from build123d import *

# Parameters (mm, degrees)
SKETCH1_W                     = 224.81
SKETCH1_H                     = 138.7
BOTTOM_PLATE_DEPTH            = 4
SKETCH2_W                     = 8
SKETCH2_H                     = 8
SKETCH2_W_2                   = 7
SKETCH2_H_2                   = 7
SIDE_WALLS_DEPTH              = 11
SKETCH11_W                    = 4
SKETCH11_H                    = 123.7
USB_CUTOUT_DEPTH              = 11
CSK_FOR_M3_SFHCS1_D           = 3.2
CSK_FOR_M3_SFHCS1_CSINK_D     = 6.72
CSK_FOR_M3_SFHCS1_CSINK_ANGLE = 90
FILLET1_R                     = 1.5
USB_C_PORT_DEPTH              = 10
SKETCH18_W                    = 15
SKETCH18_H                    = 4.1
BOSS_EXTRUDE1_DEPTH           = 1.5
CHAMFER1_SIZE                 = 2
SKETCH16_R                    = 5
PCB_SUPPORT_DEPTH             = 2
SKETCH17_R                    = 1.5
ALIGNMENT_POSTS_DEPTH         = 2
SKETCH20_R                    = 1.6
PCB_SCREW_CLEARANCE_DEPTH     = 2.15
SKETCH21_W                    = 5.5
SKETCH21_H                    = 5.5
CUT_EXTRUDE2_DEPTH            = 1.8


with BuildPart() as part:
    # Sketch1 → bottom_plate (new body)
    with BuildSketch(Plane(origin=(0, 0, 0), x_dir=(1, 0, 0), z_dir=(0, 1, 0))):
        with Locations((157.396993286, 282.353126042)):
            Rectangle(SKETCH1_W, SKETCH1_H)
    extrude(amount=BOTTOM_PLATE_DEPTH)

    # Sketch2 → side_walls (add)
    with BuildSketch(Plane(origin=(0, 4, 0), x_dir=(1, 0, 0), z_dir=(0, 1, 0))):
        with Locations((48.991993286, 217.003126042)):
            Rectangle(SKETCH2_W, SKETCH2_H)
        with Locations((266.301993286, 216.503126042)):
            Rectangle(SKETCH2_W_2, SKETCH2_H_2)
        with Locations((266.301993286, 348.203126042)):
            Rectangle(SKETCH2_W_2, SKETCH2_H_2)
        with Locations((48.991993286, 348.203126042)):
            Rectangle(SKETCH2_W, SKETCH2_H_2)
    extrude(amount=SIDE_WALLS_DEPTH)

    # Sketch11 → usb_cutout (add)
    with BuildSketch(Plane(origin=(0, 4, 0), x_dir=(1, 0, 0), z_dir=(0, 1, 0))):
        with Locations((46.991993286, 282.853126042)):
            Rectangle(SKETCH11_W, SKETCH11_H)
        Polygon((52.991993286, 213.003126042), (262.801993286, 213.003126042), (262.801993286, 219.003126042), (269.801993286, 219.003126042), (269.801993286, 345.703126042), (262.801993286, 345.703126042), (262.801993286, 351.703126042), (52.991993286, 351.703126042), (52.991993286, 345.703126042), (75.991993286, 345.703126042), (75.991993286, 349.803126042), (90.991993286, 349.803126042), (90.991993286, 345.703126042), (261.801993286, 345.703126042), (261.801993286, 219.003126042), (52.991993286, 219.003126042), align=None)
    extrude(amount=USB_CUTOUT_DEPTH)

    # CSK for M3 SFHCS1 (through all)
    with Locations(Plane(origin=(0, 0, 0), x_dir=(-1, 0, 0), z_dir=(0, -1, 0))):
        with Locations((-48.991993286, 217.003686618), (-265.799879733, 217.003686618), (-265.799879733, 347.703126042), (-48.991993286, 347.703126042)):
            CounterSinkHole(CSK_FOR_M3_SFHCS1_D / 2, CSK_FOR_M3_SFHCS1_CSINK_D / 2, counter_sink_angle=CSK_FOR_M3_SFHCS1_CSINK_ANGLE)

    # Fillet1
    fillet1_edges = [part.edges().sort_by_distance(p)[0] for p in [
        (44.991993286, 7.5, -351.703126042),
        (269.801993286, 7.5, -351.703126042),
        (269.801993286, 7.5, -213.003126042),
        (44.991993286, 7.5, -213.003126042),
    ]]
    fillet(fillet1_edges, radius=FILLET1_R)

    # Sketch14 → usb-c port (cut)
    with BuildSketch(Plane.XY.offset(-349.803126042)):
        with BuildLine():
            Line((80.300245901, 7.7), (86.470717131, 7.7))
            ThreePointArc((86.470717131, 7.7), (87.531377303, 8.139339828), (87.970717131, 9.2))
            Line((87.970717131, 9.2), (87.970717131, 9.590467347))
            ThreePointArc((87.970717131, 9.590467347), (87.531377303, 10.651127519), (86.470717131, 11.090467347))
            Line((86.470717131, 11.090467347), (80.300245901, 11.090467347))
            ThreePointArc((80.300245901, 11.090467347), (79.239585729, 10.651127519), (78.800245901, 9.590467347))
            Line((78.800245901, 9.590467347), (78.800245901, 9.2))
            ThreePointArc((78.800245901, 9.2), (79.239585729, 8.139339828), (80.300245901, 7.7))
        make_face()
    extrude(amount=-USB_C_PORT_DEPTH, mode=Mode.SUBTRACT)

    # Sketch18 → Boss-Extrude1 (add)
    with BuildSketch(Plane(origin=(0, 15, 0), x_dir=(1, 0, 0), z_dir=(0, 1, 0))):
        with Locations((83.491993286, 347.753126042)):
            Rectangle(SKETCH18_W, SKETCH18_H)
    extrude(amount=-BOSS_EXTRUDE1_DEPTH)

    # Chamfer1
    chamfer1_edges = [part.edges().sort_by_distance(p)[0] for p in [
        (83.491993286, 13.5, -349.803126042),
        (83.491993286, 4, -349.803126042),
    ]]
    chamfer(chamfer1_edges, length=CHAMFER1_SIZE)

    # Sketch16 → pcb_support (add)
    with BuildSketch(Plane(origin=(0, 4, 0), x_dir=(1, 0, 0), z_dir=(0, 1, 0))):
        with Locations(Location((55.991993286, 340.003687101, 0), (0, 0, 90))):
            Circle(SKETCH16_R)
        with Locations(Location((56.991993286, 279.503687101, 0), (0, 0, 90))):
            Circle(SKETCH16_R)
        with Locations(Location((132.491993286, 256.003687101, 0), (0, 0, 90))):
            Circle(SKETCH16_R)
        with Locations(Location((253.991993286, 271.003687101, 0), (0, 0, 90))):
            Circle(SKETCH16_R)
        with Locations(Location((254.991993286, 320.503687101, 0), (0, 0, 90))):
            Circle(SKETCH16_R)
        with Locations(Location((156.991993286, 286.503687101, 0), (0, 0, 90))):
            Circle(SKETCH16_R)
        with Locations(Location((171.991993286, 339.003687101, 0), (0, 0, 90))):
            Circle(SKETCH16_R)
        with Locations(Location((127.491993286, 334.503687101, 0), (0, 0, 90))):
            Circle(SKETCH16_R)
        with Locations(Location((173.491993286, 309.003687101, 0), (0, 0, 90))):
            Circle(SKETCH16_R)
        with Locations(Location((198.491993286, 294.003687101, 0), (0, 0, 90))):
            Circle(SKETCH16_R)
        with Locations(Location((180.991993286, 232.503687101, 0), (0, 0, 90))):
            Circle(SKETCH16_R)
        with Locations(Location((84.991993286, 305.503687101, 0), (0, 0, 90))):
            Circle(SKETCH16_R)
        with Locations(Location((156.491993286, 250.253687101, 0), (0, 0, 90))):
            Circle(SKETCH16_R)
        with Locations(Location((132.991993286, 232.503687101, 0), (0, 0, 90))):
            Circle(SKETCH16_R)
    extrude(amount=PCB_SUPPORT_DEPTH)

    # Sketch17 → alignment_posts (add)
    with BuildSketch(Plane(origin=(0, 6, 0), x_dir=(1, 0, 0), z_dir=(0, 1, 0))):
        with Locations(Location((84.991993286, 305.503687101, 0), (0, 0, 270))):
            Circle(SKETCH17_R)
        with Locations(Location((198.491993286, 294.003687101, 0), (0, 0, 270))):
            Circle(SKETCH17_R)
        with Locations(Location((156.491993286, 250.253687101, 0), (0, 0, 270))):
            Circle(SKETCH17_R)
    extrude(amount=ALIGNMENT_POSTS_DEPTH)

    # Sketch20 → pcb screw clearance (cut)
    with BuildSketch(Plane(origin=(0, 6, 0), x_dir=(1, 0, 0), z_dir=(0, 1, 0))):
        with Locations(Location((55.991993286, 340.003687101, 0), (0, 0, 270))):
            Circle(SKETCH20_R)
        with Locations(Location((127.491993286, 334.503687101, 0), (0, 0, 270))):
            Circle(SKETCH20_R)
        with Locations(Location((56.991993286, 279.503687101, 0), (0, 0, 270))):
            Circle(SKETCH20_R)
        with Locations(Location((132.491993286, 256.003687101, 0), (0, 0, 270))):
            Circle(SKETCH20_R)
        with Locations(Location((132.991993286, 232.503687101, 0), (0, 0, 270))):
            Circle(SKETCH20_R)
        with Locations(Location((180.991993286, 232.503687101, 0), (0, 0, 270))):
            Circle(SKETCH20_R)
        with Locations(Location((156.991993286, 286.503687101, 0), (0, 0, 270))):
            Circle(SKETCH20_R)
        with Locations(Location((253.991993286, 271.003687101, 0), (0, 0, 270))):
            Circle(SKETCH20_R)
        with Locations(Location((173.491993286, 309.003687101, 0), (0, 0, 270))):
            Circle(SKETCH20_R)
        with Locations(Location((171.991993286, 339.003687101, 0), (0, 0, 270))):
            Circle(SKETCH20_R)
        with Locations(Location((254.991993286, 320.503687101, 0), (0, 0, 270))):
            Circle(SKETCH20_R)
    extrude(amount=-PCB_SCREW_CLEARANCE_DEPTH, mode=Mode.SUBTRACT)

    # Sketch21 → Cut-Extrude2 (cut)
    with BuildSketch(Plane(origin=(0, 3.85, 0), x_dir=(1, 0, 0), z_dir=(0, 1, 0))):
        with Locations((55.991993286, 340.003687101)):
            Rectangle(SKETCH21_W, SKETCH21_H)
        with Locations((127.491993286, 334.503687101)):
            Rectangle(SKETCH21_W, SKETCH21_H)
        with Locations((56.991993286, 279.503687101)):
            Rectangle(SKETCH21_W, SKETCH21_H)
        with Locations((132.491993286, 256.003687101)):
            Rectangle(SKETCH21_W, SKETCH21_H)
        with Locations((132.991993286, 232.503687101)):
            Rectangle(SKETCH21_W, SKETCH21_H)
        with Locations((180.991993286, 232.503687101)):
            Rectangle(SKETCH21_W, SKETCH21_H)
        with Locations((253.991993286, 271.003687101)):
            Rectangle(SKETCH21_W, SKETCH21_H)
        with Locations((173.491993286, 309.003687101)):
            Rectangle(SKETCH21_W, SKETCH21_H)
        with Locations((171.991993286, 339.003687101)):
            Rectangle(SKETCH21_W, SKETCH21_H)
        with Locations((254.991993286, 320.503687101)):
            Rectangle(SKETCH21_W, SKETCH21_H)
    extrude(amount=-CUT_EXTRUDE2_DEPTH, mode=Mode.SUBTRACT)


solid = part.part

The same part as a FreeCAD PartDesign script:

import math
import FreeCAD as App
import Part
import Sketcher
from FreeCAD import Vector
Q = App.Units.Quantity


def edges_at(feature, points):
    """Names of the edges that pass closest to the given points."""
    edges = feature.Shape.Edges
    near = lambda p: min(range(len(edges)), key=lambda i: edges[i].distToShape(Part.Vertex(*p))[0])
    return sorted({f"Edge{near(p) + 1}" for p in points})

doc = App.newDocument("Part")
body = doc.addObject("PartDesign::Body", "Body")

# Sketch on XZ plane
sketch1 = body.newObject("Sketcher::SketchObject", "Sketch")
sketch1.AttachmentSupport = (doc.getObject("XZ_Plane"), [""])
sketch1.MapMode = "FlatFace"
sketch1.addGeometry(Part.LineSegment(Vector(45, -352, 0), Vector(45, -213, 0)), False)
sketch1.addGeometry(Part.LineSegment(Vector(45, -213, 0), Vector(270, -213, 0)), False)
sketch1.addGeometry(Part.LineSegment(Vector(270, -213, 0), Vector(270, -352, 0)), False)
sketch1.addGeometry(Part.LineSegment(Vector(270, -352, 0), Vector(45, -352, 0)), False)
sketch1.addConstraint(Sketcher.Constraint("Coincident", 0, 2, 1, 1))
sketch1.addConstraint(Sketcher.Constraint("Coincident", 1, 2, 2, 1))
sketch1.addConstraint(Sketcher.Constraint("Coincident", 2, 2, 3, 1))
sketch1.addConstraint(Sketcher.Constraint("Coincident", 3, 2, 0, 1))
sketch1.addConstraint(Sketcher.Constraint("Vertical", 0))
sketch1.addConstraint(Sketcher.Constraint("Horizontal", 1))
sketch1.addConstraint(Sketcher.Constraint("Vertical", 2))
sketch1.addConstraint(Sketcher.Constraint("Horizontal", 3))
sketch1.addConstraint(Sketcher.Constraint("DistanceY", 0, 1, 0, 2, Q("138.7 mm")))
sketch1.addConstraint(Sketcher.Constraint("DistanceX", 1, 1, 1, 2, Q("224.81 mm")))
sketch1.addConstraint(Sketcher.Constraint("DistanceX", -1, 1, 0, 2, Q("44.991993 mm")))
sketch1.addConstraint(Sketcher.Constraint("DistanceY", 0, 2, -1, 1, Q("213.003126 mm")))
pad1 = body.newObject("PartDesign::Pad", "Pad")
pad1.Profile = sketch1
pad1.Length = 4
pad1.Reversed = True

# Sketch on XZ plane
sketch2 = body.newObject("Sketcher::SketchObject", "Sketch001")
sketch2.AttachmentSupport = (doc.getObject("XZ_Plane"), [""])
sketch2.MapMode = "FlatFace"
sketch2.AttachmentOffset = App.Placement(Vector(0, 0, -4), App.Rotation())
sketch2.addGeometry(Part.LineSegment(Vector(45, -221, 0), Vector(45, -213, 0)), False)
sketch2.addGeometry(Part.LineSegment(Vector(45, -213, 0), Vector(53, -213, 0)), False)
sketch2.addGeometry(Part.LineSegment(Vector(53, -213, 0), Vector(53, -221, 0)), False)
sketch2.addGeometry(Part.LineSegment(Vector(53, -221, 0), Vector(45, -221, 0)), False)
sketch2.addGeometry(Part.LineSegment(Vector(263, -220, 0), Vector(263, -213, 0)), False)
sketch2.addGeometry(Part.LineSegment(Vector(263, -213, 0), Vector(270, -213, 0)), False)
sketch2.addGeometry(Part.LineSegment(Vector(270, -213, 0), Vector(270, -220, 0)), False)
sketch2.addGeometry(Part.LineSegment(Vector(270, -220, 0), Vector(263, -220, 0)), False)
sketch2.addGeometry(Part.LineSegment(Vector(263, -352, 0), Vector(263, -345, 0)), False)
sketch2.addGeometry(Part.LineSegment(Vector(263, -345, 0), Vector(270, -345, 0)), False)
sketch2.addGeometry(Part.LineSegment(Vector(270, -345, 0), Vector(270, -352, 0)), False)
sketch2.addGeometry(Part.LineSegment(Vector(270, -352, 0), Vector(263, -352, 0)), False)
sketch2.addGeometry(Part.LineSegment(Vector(45, -352, 0), Vector(45, -345, 0)), False)
sketch2.addGeometry(Part.LineSegment(Vector(45, -345, 0), Vector(53, -345, 0)), False)
sketch2.addGeometry(Part.LineSegment(Vector(53, -345, 0), Vector(53, -352, 0)), False)
sketch2.addGeometry(Part.LineSegment(Vector(53, -352, 0), Vector(45, -352, 0)), False)
sketch2.addConstraint(Sketcher.Constraint("Coincident", 0, 2, 1, 1))
sketch2.addConstraint(Sketcher.Constraint("Coincident", 1, 2, 2, 1))
sketch2.addConstraint(Sketcher.Constraint("Coincident", 2, 2, 3, 1))
sketch2.addConstraint(Sketcher.Constraint("Coincident", 3, 2, 0, 1))
sketch2.addConstraint(Sketcher.Constraint("Coincident", 4, 2, 5, 1))
sketch2.addConstraint(Sketcher.Constraint("Coincident", 5, 2, 6, 1))
sketch2.addConstraint(Sketcher.Constraint("Coincident", 6, 2, 7, 1))
sketch2.addConstraint(Sketcher.Constraint("Coincident", 7, 2, 4, 1))
sketch2.addConstraint(Sketcher.Constraint("Coincident", 8, 2, 9, 1))
sketch2.addConstraint(Sketcher.Constraint("Coincident", 9, 2, 10, 1))
sketch2.addConstraint(Sketcher.Constraint("Coincident", 10, 2, 11, 1))
sketch2.addConstraint(Sketcher.Constraint("Coincident", 11, 2, 8, 1))
sketch2.addConstraint(Sketcher.Constraint("Coincident", 12, 2, 13, 1))
sketch2.addConstraint(Sketcher.Constraint("Coincident", 13, 2, 14, 1))
sketch2.addConstraint(Sketcher.Constraint("Coincident", 14, 2, 15, 1))
sketch2.addConstraint(Sketcher.Constraint("Coincident", 15, 2, 12, 1))
sketch2.addConstraint(Sketcher.Constraint("Vertical", 0))
sketch2.addConstraint(Sketcher.Constraint("Horizontal", 1))
sketch2.addConstraint(Sketcher.Constraint("Vertical", 2))
sketch2.addConstraint(Sketcher.Constraint("Horizontal", 3))
sketch2.addConstraint(Sketcher.Constraint("Vertical", 4))
sketch2.addConstraint(Sketcher.Constraint("Horizontal", 5))
sketch2.addConstraint(Sketcher.Constraint("Vertical", 6))
sketch2.addConstraint(Sketcher.Constraint("Horizontal", 7))
sketch2.addConstraint(Sketcher.Constraint("Vertical", 8))
sketch2.addConstraint(Sketcher.Constraint("Horizontal", 9))
sketch2.addConstraint(Sketcher.Constraint("Vertical", 10))
sketch2.addConstraint(Sketcher.Constraint("Horizontal", 11))
sketch2.addConstraint(Sketcher.Constraint("Vertical", 12))
sketch2.addConstraint(Sketcher.Constraint("Horizontal", 13))
sketch2.addConstraint(Sketcher.Constraint("Vertical", 14))
sketch2.addConstraint(Sketcher.Constraint("Horizontal", 15))
sketch2.addConstraint(Sketcher.Constraint("Horizontal", 1, 2, 4, 2))
sketch2.addConstraint(Sketcher.Constraint("Horizontal", 9, 2, 12, 2))
sketch2.addConstraint(Sketcher.Constraint("Horizontal", 11, 2, 14, 2))
sketch2.addConstraint(Sketcher.Constraint("Vertical", 7, 2, 8, 2))
sketch2.addConstraint(Sketcher.Constraint("Vertical", 6, 2, 9, 2))
sketch2.addConstraint(Sketcher.Constraint("Vertical", 3, 2, 12, 2))
sketch2.addConstraint(Sketcher.Constraint("Vertical", 2, 2, 13, 2))
sketch2.addConstraint(Sketcher.Constraint("Equal", 15, 0))
sketch2.addConstraint(Sketcher.Constraint("Equal", 11, 4))
sketch2.addConstraint(Sketcher.Constraint("Equal", 6, 8))
sketch2.addConstraint(Sketcher.Constraint("DistanceX", 1, 1, 1, 2, Q("8 mm")))
sketch2.addConstraint(Sketcher.Constraint("DistanceX", 5, 1, 5, 2, Q("7 mm")))
sketch2.addConstraint(Sketcher.Constraint("DistanceY", 8, 2, 7, 2, Q("124.7 mm")))
sketch2.addConstraint(Sketcher.Constraint("DistanceX", 1, 2, 4, 2, Q("209.81 mm")))
sketch2.addConstraint(Sketcher.Constraint("DistanceX", -1, 1, 0, 2, Q("44.991993 mm")))
sketch2.addConstraint(Sketcher.Constraint("DistanceY", 0, 2, -1, 1, Q("213.003126 mm")))
pad2 = body.newObject("PartDesign::Pad", "Pad001")
pad2.Profile = sketch2
pad2.Length = 11
pad2.Reversed = True

# Sketch on XZ plane
sketch3 = body.newObject("Sketcher::SketchObject", "Sketch002")
sketch3.AttachmentSupport = (doc.getObject("XZ_Plane"), [""])
sketch3.MapMode = "FlatFace"
sketch3.AttachmentOffset = App.Placement(Vector(0, 0, -4), App.Rotation())
sketch3.addGeometry(Part.LineSegment(Vector(45, -344.7, 0), Vector(45, -221, 0)), False)
sketch3.addGeometry(Part.LineSegment(Vector(45, -221, 0), Vector(49, -221, 0)), False)
sketch3.addGeometry(Part.LineSegment(Vector(49, -221, 0), Vector(49, -344.7, 0)), False)
sketch3.addGeometry(Part.LineSegment(Vector(49, -344.7, 0), Vector(45, -344.7, 0)), False)
sketch3.addGeometry(Part.LineSegment(Vector(53, -213, 0), Vector(262.8, -213, 0)), False)
sketch3.addGeometry(Part.LineSegment(Vector(262.8, -213, 0), Vector(262.8, -219, 0)), False)
sketch3.addGeometry(Part.LineSegment(Vector(262.8, -219, 0), Vector(269.8, -219, 0)), False)
sketch3.addGeometry(Part.LineSegment(Vector(269.8, -219, 0), Vector(269.8, -345.7, 0)), False)
sketch3.addGeometry(Part.LineSegment(Vector(269.8, -345.7, 0), Vector(262.8, -345.7, 0)), False)
sketch3.addGeometry(Part.LineSegment(Vector(262.8, -345.7, 0), Vector(262.8, -351.7, 0)), False)
sketch3.addGeometry(Part.LineSegment(Vector(262.8, -351.7, 0), Vector(53, -351.7, 0)), False)
sketch3.addGeometry(Part.LineSegment(Vector(53, -351.7, 0), Vector(53, -345.7, 0)), False)
sketch3.addGeometry(Part.LineSegment(Vector(53, -345.7, 0), Vector(76, -345.7, 0)), False)
sketch3.addGeometry(Part.LineSegment(Vector(76, -345.7, 0), Vector(76, -349.8, 0)), False)
sketch3.addGeometry(Part.LineSegment(Vector(76, -349.8, 0), Vector(91, -349.8, 0)), False)
sketch3.addGeometry(Part.LineSegment(Vector(91, -349.8, 0), Vector(91, -345.7, 0)), False)
sketch3.addGeometry(Part.LineSegment(Vector(91, -345.7, 0), Vector(261.8, -345.7, 0)), False)
sketch3.addGeometry(Part.LineSegment(Vector(261.8, -345.7, 0), Vector(261.8, -219, 0)), False)
sketch3.addGeometry(Part.LineSegment(Vector(261.8, -219, 0), Vector(53, -219, 0)), False)
sketch3.addGeometry(Part.LineSegment(Vector(53, -219, 0), Vector(53, -213, 0)), False)
sketch3.addConstraint(Sketcher.Constraint("Coincident", 0, 2, 1, 1))
sketch3.addConstraint(Sketcher.Constraint("Coincident", 1, 2, 2, 1))
sketch3.addConstraint(Sketcher.Constraint("Coincident", 2, 2, 3, 1))
sketch3.addConstraint(Sketcher.Constraint("Coincident", 3, 2, 0, 1))
sketch3.addConstraint(Sketcher.Constraint("Coincident", 4, 2, 5, 1))
sketch3.addConstraint(Sketcher.Constraint("Coincident", 5, 2, 6, 1))
sketch3.addConstraint(Sketcher.Constraint("Coincident", 6, 2, 7, 1))
sketch3.addConstraint(Sketcher.Constraint("Coincident", 7, 2, 8, 1))
sketch3.addConstraint(Sketcher.Constraint("Coincident", 8, 2, 9, 1))
sketch3.addConstraint(Sketcher.Constraint("Coincident", 9, 2, 10, 1))
sketch3.addConstraint(Sketcher.Constraint("Coincident", 10, 2, 11, 1))
sketch3.addConstraint(Sketcher.Constraint("Coincident", 11, 2, 12, 1))
sketch3.addConstraint(Sketcher.Constraint("Coincident", 12, 2, 13, 1))
sketch3.addConstraint(Sketcher.Constraint("Coincident", 13, 2, 14, 1))
sketch3.addConstraint(Sketcher.Constraint("Coincident", 14, 2, 15, 1))
sketch3.addConstraint(Sketcher.Constraint("Coincident", 15, 2, 16, 1))
sketch3.addConstraint(Sketcher.Constraint("Coincident", 16, 2, 17, 1))
sketch3.addConstraint(Sketcher.Constraint("Coincident", 17, 2, 18, 1))
sketch3.addConstraint(Sketcher.Constraint("Coincident", 18, 2, 19, 1))
sketch3.addConstraint(Sketcher.Constraint("Coincident", 19, 2, 4, 1))
sketch3.addConstraint(Sketcher.Constraint("Vertical", 0))
sketch3.addConstraint(Sketcher.Constraint("Horizontal", 1))
sketch3.addConstraint(Sketcher.Constraint("Vertical", 2))
sketch3.addConstraint(Sketcher.Constraint("Horizontal", 3))
sketch3.addConstraint(Sketcher.Constraint("Horizontal", 4))
sketch3.addConstraint(Sketcher.Constraint("Vertical", 5))
sketch3.addConstraint(Sketcher.Constraint("Horizontal", 6))
sketch3.addConstraint(Sketcher.Constraint("Vertical", 7))
sketch3.addConstraint(Sketcher.Constraint("Horizontal", 8))
sketch3.addConstraint(Sketcher.Constraint("Vertical", 9))
sketch3.addConstraint(Sketcher.Constraint("Horizontal", 10))
sketch3.addConstraint(Sketcher.Constraint("Vertical", 11))
sketch3.addConstraint(Sketcher.Constraint("Horizontal", 12))
sketch3.addConstraint(Sketcher.Constraint("Vertical", 13))
sketch3.addConstraint(Sketcher.Constraint("Horizontal", 14))
sketch3.addConstraint(Sketcher.Constraint("Vertical", 15))
sketch3.addConstraint(Sketcher.Constraint("Horizontal", 16))
sketch3.addConstraint(Sketcher.Constraint("Vertical", 17))
sketch3.addConstraint(Sketcher.Constraint("Horizontal", 18))
sketch3.addConstraint(Sketcher.Constraint("Vertical", 19))
sketch3.addConstraint(Sketcher.Constraint("Horizontal", 8, 2, 11, 2))
sketch3.addConstraint(Sketcher.Constraint("Horizontal", 12, 2, 15, 2))
sketch3.addConstraint(Sketcher.Constraint("Horizontal", 6, 2, 17, 2))
sketch3.addConstraint(Sketcher.Constraint("Vertical", 5, 2, 8, 2))
sketch3.addConstraint(Sketcher.Constraint("Vertical", 11, 2, 18, 2))
sketch3.addConstraint(Sketcher.Constraint("Equal", 5, 9))
sketch3.addConstraint(Sketcher.Constraint("DistanceX", 1, 1, 1, 2, Q("4 mm")))
sketch3.addConstraint(Sketcher.Constraint("DistanceX", 6, 1, 6, 2, Q("7 mm")))
sketch3.addConstraint(Sketcher.Constraint("DistanceX", 12, 1, 12, 2, Q("23 mm")))
sketch3.addConstraint(Sketcher.Constraint("DistanceX", 14, 1, 14, 2, Q("15 mm")))
sketch3.addConstraint(Sketcher.Constraint("DistanceY", 5, 2, 5, 1, Q("6 mm")))
sketch3.addConstraint(Sketcher.Constraint("DistanceY", 0, 1, 0, 2, Q("123.7 mm")))
sketch3.addConstraint(Sketcher.Constraint("DistanceY", 7, 2, 7, 1, Q("126.7 mm")))
sketch3.addConstraint(Sketcher.Constraint("DistanceY", 13, 2, 13, 1, Q("4.1 mm")))
sketch3.addConstraint(Sketcher.Constraint("DistanceY", 1, 2, 4, 2, Q("8 mm")))
sketch3.addConstraint(Sketcher.Constraint("DistanceX", 2, 2, 10, 2, Q("4 mm")))
sketch3.addConstraint(Sketcher.Constraint("DistanceX", 16, 2, 8, 2, Q("1 mm")))
sketch3.addConstraint(Sketcher.Constraint("DistanceX", 4, 1, 4, 2, Q("209.81 mm")))
sketch3.addConstraint(Sketcher.Constraint("DistanceX", -1, 1, 0, 2, Q("44.991993 mm")))
sketch3.addConstraint(Sketcher.Constraint("DistanceY", 0, 2, -1, 1, Q("221.003126 mm")))
pad3 = body.newObject("PartDesign::Pad", "Pad002")
pad3.Profile = sketch3
pad3.Length = 11
pad3.Reversed = True

# Sketch on XZ plane
sketch4 = body.newObject("Sketcher::SketchObject", "Sketch003")
sketch4.AttachmentSupport = (doc.getObject("XZ_Plane"), [""])
sketch4.MapMode = "FlatFace"
sketch4.addGeometry(Part.Circle(Vector(49, -217, 0), Vector(0, 0, 1), 1.6), False)
sketch4.addGeometry(Part.Circle(Vector(265.8, -217, 0), Vector(0, 0, 1), 1.6), False)
sketch4.addGeometry(Part.Circle(Vector(265.8, -347.7, 0), Vector(0, 0, 1), 1.6), False)
sketch4.addGeometry(Part.Circle(Vector(49, -347.7, 0), Vector(0, 0, 1), 1.6), False)
sketch4.addConstraint(Sketcher.Constraint("Equal", 0, 1))
sketch4.addConstraint(Sketcher.Constraint("Equal", 1, 2))
sketch4.addConstraint(Sketcher.Constraint("Equal", 2, 3))
sketch4.addConstraint(Sketcher.Constraint("Horizontal", 0, 3, 1, 3))
sketch4.addConstraint(Sketcher.Constraint("Horizontal", 2, 3, 3, 3))
sketch4.addConstraint(Sketcher.Constraint("Vertical", 1, 3, 2, 3))
sketch4.addConstraint(Sketcher.Constraint("Vertical", 0, 3, 3, 3))
sketch4.addConstraint(Sketcher.Constraint("Diameter", 0, Q("3.2 mm")))
sketch4.addConstraint(Sketcher.Constraint("DistanceX", -1, 1, 1, 3, Q("265.79988 mm")))
sketch4.addConstraint(Sketcher.Constraint("DistanceY", 2, 3, 1, 3, Q("130.699439 mm")))
sketch4.addConstraint(Sketcher.Constraint("DistanceX", -1, 1, 0, 3, Q("48.991993 mm")))
sketch4.addConstraint(Sketcher.Constraint("DistanceY", 0, 3, -1, 1, Q("217.003687 mm")))
doc.recompute()
hole = body.newObject("PartDesign::Hole", "Hole")
hole.Profile = sketch4
hole.ThreadType = "None"
hole.Diameter = 3.2
hole.DepthType = "ThroughAll"
hole.HoleCutType = "Countersink"
hole.HoleCutDiameter = 6.72
hole.HoleCutCountersinkAngle = 90
doc.recompute()

fillet = body.newObject("PartDesign::Fillet", "Fillet")
fillet.Base = (hole, edges_at(hole, [
    (44.992, 7.5, -351.703),
    (269.802, 7.5, -351.703),
    (269.802, 7.5, -213.003),
    (44.992, 7.5, -213.003),
]))
fillet.Radius = 1.5

# Sketch on XY plane
sketch5 = body.newObject("Sketcher::SketchObject", "Sketch004")
sketch5.AttachmentSupport = (doc.getObject("XY_Plane"), [""])
sketch5.MapMode = "FlatFace"
sketch5.AttachmentOffset = App.Placement(Vector(0, 0, -349.803126), App.Rotation())
sketch5.addGeometry(Part.LineSegment(Vector(80.3, 7.7, 0), Vector(86.47, 7.7, 0)), False)
sketch5.addGeometry(Part.ArcOfCircle(Part.Circle(Vector(86.47, 9.2, 0), Vector(0, 0, 1), 1.5), math.radians(-90), math.radians(0)), False)
sketch5.addGeometry(Part.LineSegment(Vector(87.97, 9.2, 0), Vector(87.97, 9.59, 0)), False)
sketch5.addGeometry(Part.ArcOfCircle(Part.Circle(Vector(86.47, 9.59, 0), Vector(0, 0, 1), 1.5), math.radians(0), math.radians(90)), False)
sketch5.addGeometry(Part.LineSegment(Vector(86.47, 11.09, 0), Vector(80.3, 11.09, 0)), False)
sketch5.addGeometry(Part.ArcOfCircle(Part.Circle(Vector(80.3, 9.59, 0), Vector(0, 0, 1), 1.5), math.radians(90), math.radians(180)), False)
sketch5.addGeometry(Part.LineSegment(Vector(78.8, 9.59, 0), Vector(78.8, 9.2, 0)), False)
sketch5.addGeometry(Part.ArcOfCircle(Part.Circle(Vector(80.3, 9.2, 0), Vector(0, 0, 1), 1.5), math.radians(180), math.radians(270)), False)
sketch5.addConstraint(Sketcher.Constraint("Tangent", 0, 2, 1, 1))
sketch5.addConstraint(Sketcher.Constraint("Tangent", 1, 2, 2, 1))
sketch5.addConstraint(Sketcher.Constraint("Tangent", 2, 2, 3, 1))
sketch5.addConstraint(Sketcher.Constraint("Tangent", 3, 2, 4, 1))
sketch5.addConstraint(Sketcher.Constraint("Tangent", 4, 2, 5, 1))
sketch5.addConstraint(Sketcher.Constraint("Tangent", 5, 2, 6, 1))
sketch5.addConstraint(Sketcher.Constraint("Tangent", 6, 2, 7, 1))
sketch5.addConstraint(Sketcher.Constraint("Tangent", 7, 2, 0, 1))
sketch5.addConstraint(Sketcher.Constraint("Horizontal", 0))
sketch5.addConstraint(Sketcher.Constraint("Vertical", 2))
sketch5.addConstraint(Sketcher.Constraint("Horizontal", 4))
sketch5.addConstraint(Sketcher.Constraint("Vertical", 6))
sketch5.addConstraint(Sketcher.Constraint("Equal", 1, 3))
sketch5.addConstraint(Sketcher.Constraint("Equal", 3, 5))
sketch5.addConstraint(Sketcher.Constraint("Equal", 5, 7))
sketch5.addConstraint(Sketcher.Constraint("Radius", 1, Q("1.5 mm")))
sketch5.addConstraint(Sketcher.Constraint("DistanceY", -1, 1, 1, 3, Q("9.2 mm")))
sketch5.addConstraint(Sketcher.Constraint("DistanceX", 0, 1, 0, 2, Q("6.170471 mm")))
sketch5.addConstraint(Sketcher.Constraint("DistanceY", 2, 1, 2, 2, Q("0.390467 mm")))
sketch5.addConstraint(Sketcher.Constraint("DistanceX", -1, 1, 1, 3, Q("86.470717 mm")))
pocket1 = body.newObject("PartDesign::Pocket", "Pocket")
pocket1.Profile = sketch5
pocket1.Length = 10

# Sketch on XZ plane
sketch6 = body.newObject("Sketcher::SketchObject", "Sketch005")
sketch6.AttachmentSupport = (doc.getObject("XZ_Plane"), [""])
sketch6.MapMode = "FlatFace"
sketch6.AttachmentOffset = App.Placement(Vector(0, 0, -15), App.Rotation())
sketch6.addGeometry(Part.LineSegment(Vector(76, -349.8, 0), Vector(76, -345.7, 0)), False)
sketch6.addGeometry(Part.LineSegment(Vector(76, -345.7, 0), Vector(91, -345.7, 0)), False)
sketch6.addGeometry(Part.LineSegment(Vector(91, -345.7, 0), Vector(91, -349.8, 0)), False)
sketch6.addGeometry(Part.LineSegment(Vector(91, -349.8, 0), Vector(76, -349.8, 0)), False)
sketch6.addConstraint(Sketcher.Constraint("Coincident", 0, 2, 1, 1))
sketch6.addConstraint(Sketcher.Constraint("Coincident", 1, 2, 2, 1))
sketch6.addConstraint(Sketcher.Constraint("Coincident", 2, 2, 3, 1))
sketch6.addConstraint(Sketcher.Constraint("Coincident", 3, 2, 0, 1))
sketch6.addConstraint(Sketcher.Constraint("Vertical", 0))
sketch6.addConstraint(Sketcher.Constraint("Horizontal", 1))
sketch6.addConstraint(Sketcher.Constraint("Vertical", 2))
sketch6.addConstraint(Sketcher.Constraint("Horizontal", 3))
sketch6.addConstraint(Sketcher.Constraint("DistanceX", 1, 1, 1, 2, Q("15 mm")))
sketch6.addConstraint(Sketcher.Constraint("DistanceY", 0, 1, 0, 2, Q("4.1 mm")))
sketch6.addConstraint(Sketcher.Constraint("DistanceX", -1, 1, 0, 2, Q("75.991993 mm")))
sketch6.addConstraint(Sketcher.Constraint("DistanceY", 0, 2, -1, 1, Q("345.703126 mm")))
pad4 = body.newObject("PartDesign::Pad", "Pad003")
pad4.Profile = sketch6
pad4.Length = 1.5
doc.recompute()

chamfer = body.newObject("PartDesign::Chamfer", "Chamfer")
chamfer.Base = (pad4, edges_at(pad4, [(83.492, 13.5, -349.803), (83.492, 4, -349.803)]))
chamfer.Size = 2

# Sketch on XZ plane
sketch7 = body.newObject("Sketcher::SketchObject", "Sketch006")
sketch7.AttachmentSupport = (doc.getObject("XZ_Plane"), [""])
sketch7.MapMode = "FlatFace"
sketch7.AttachmentOffset = App.Placement(Vector(0, 0, -4), App.Rotation())
sketch7.addGeometry(Part.Circle(Vector(56, -340, 0), Vector(0, 0, 1), 5), False)
sketch7.addGeometry(Part.Circle(Vector(57, -280, 0), Vector(0, 0, 1), 5), False)
sketch7.addGeometry(Part.Circle(Vector(132, -256, 0), Vector(0, 0, 1), 5), False)
sketch7.addGeometry(Part.Circle(Vector(254, -271, 0), Vector(0, 0, 1), 5), False)
sketch7.addGeometry(Part.Circle(Vector(255, -321, 0), Vector(0, 0, 1), 5), False)
sketch7.addGeometry(Part.Circle(Vector(157, -287, 0), Vector(0, 0, 1), 5), False)
sketch7.addGeometry(Part.Circle(Vector(172, -339, 0), Vector(0, 0, 1), 5), False)
sketch7.addGeometry(Part.Circle(Vector(127, -335, 0), Vector(0, 0, 1), 5), False)
sketch7.addGeometry(Part.Circle(Vector(173, -309, 0), Vector(0, 0, 1), 5), False)
sketch7.addGeometry(Part.Circle(Vector(198, -294, 0), Vector(0, 0, 1), 5), False)
sketch7.addGeometry(Part.Circle(Vector(181, -233, 0), Vector(0, 0, 1), 5), False)
sketch7.addGeometry(Part.Circle(Vector(85, -306, 0), Vector(0, 0, 1), 5), False)
sketch7.addGeometry(Part.Circle(Vector(156, -250, 0), Vector(0, 0, 1), 5), False)
sketch7.addGeometry(Part.Circle(Vector(133, -233, 0), Vector(0, 0, 1), 5), False)
sketch7.addConstraint(Sketcher.Constraint("Equal", 0, 1))
sketch7.addConstraint(Sketcher.Constraint("Equal", 1, 2))
sketch7.addConstraint(Sketcher.Constraint("Equal", 2, 3))
sketch7.addConstraint(Sketcher.Constraint("Equal", 3, 4))
sketch7.addConstraint(Sketcher.Constraint("Equal", 4, 5))
sketch7.addConstraint(Sketcher.Constraint("Equal", 5, 6))
sketch7.addConstraint(Sketcher.Constraint("Equal", 6, 7))
sketch7.addConstraint(Sketcher.Constraint("Equal", 7, 8))
sketch7.addConstraint(Sketcher.Constraint("Equal", 8, 9))
sketch7.addConstraint(Sketcher.Constraint("Equal", 9, 10))
sketch7.addConstraint(Sketcher.Constraint("Equal", 10, 11))
sketch7.addConstraint(Sketcher.Constraint("Equal", 11, 12))
sketch7.addConstraint(Sketcher.Constraint("Equal", 12, 13))
sketch7.addConstraint(Sketcher.Constraint("Horizontal", 10, 3, 13, 3))
sketch7.addConstraint(Sketcher.Constraint("Diameter", 0, Q("10 mm")))
sketch7.addConstraint(Sketcher.Constraint("DistanceX", 0, 3, 1, 3, Q("1 mm")))
sketch7.addConstraint(Sketcher.Constraint("DistanceY", 0, 3, 2, 3, Q("84 mm")))
sketch7.addConstraint(Sketcher.Constraint("DistanceY", 3, 3, 2, 3, Q("15 mm")))
sketch7.addConstraint(Sketcher.Constraint("DistanceX", 1, 3, 3, 3, Q("197 mm")))
sketch7.addConstraint(Sketcher.Constraint("DistanceX", 3, 3, 4, 3, Q("1 mm")))
sketch7.addConstraint(Sketcher.Constraint("DistanceY", 4, 3, 1, 3, Q("41 mm")))
sketch7.addConstraint(Sketcher.Constraint("DistanceX", 5, 3, 3, 3, Q("97 mm")))
sketch7.addConstraint(Sketcher.Constraint("DistanceY", 5, 3, 1, 3, Q("7 mm")))
sketch7.addConstraint(Sketcher.Constraint("DistanceX", 5, 3, 6, 3, Q("15 mm")))
sketch7.addConstraint(Sketcher.Constraint("DistanceY", 6, 3, 2, 3, Q("83 mm")))
sketch7.addConstraint(Sketcher.Constraint("DistanceY", 7, 3, 5, 3, Q("48 mm")))
sketch7.addConstraint(Sketcher.Constraint("DistanceX", 7, 3, 2, 3, Q("5 mm")))
sketch7.addConstraint(Sketcher.Constraint("DistanceY", 6, 3, 8, 3, Q("30 mm")))
sketch7.addConstraint(Sketcher.Constraint("DistanceX", 7, 3, 8, 3, Q("46 mm")))
sketch7.addConstraint(Sketcher.Constraint("DistanceX", 8, 3, 9, 3, Q("25 mm")))
sketch7.addConstraint(Sketcher.Constraint("DistanceY", 8, 3, 9, 3, Q("15 mm")))
sketch7.addConstraint(Sketcher.Constraint("DistanceX", 5, 3, 10, 3, Q("24 mm")))
sketch7.addConstraint(Sketcher.Constraint("DistanceY", 5, 3, 10, 3, Q("54 mm")))
sketch7.addConstraint(Sketcher.Constraint("DistanceX", 1, 3, 11, 3, Q("28 mm")))
sketch7.addConstraint(Sketcher.Constraint("DistanceY", 11, 3, 1, 3, Q("26 mm")))
sketch7.addConstraint(Sketcher.Constraint("DistanceX", 2, 3, 12, 3, Q("24 mm")))
sketch7.addConstraint(Sketcher.Constraint("DistanceX", 13, 3, 10, 3, Q("48 mm")))
sketch7.addConstraint(Sketcher.Constraint("DistanceY", 0, 3, 1, 3, Q("60.5 mm")))
sketch7.addConstraint(Sketcher.Constraint("DistanceX", 1, 3, 2, 3, Q("75.5 mm")))
sketch7.addConstraint(Sketcher.Constraint("DistanceY", 2, 3, 12, 3, Q("5.75 mm")))
sketch7.addConstraint(Sketcher.Constraint("DistanceX", -1, 1, 0, 3, Q("55.991993 mm")))
sketch7.addConstraint(Sketcher.Constraint("DistanceY", 0, 3, -1, 1, Q("340.003687 mm")))
pad5 = body.newObject("PartDesign::Pad", "Pad004")
pad5.Profile = sketch7
pad5.Length = 2
pad5.Reversed = True

# Sketch on XZ plane
sketch8 = body.newObject("Sketcher::SketchObject", "Sketch007")
sketch8.AttachmentSupport = (doc.getObject("XZ_Plane"), [""])
sketch8.MapMode = "FlatFace"
sketch8.AttachmentOffset = App.Placement(Vector(0, 0, -6), App.Rotation())
sketch8.addGeometry(Part.Circle(Vector(85, -305.5, 0), Vector(0, 0, 1), 1.5), False)
sketch8.addGeometry(Part.Circle(Vector(198.5, -294, 0), Vector(0, 0, 1), 1.5), False)
sketch8.addGeometry(Part.Circle(Vector(156.5, -250.3, 0), Vector(0, 0, 1), 1.5), False)
sketch8.addConstraint(Sketcher.Constraint("Equal", 0, 1))
sketch8.addConstraint(Sketcher.Constraint("Equal", 1, 2))
sketch8.addConstraint(Sketcher.Constraint("Diameter", 0, Q("3 mm")))
sketch8.addConstraint(Sketcher.Constraint("DistanceX", 2, 3, 1, 3, Q("42 mm")))
sketch8.addConstraint(Sketcher.Constraint("DistanceX", 0, 3, 1, 3, Q("113.5 mm")))
sketch8.addConstraint(Sketcher.Constraint("DistanceY", 0, 3, 1, 3, Q("11.5 mm")))
sketch8.addConstraint(Sketcher.Constraint("DistanceY", 1, 3, 2, 3, Q("43.75 mm")))
sketch8.addConstraint(Sketcher.Constraint("DistanceX", -1, 1, 0, 3, Q("84.991993 mm")))
sketch8.addConstraint(Sketcher.Constraint("DistanceY", 0, 3, -1, 1, Q("305.503687 mm")))
pad6 = body.newObject("PartDesign::Pad", "Pad005")
pad6.Profile = sketch8
pad6.Length = 2
pad6.Reversed = True

# Sketch on XZ plane
sketch9 = body.newObject("Sketcher::SketchObject", "Sketch008")
sketch9.AttachmentSupport = (doc.getObject("XZ_Plane"), [""])
sketch9.MapMode = "FlatFace"
sketch9.AttachmentOffset = App.Placement(Vector(0, 0, -6), App.Rotation())
sketch9.addGeometry(Part.Circle(Vector(56, -340, 0), Vector(0, 0, 1), 1.6), False)
sketch9.addGeometry(Part.Circle(Vector(127.5, -334.5, 0), Vector(0, 0, 1), 1.6), False)
sketch9.addGeometry(Part.Circle(Vector(57, -279.5, 0), Vector(0, 0, 1), 1.6), False)
sketch9.addGeometry(Part.Circle(Vector(132.5, -256, 0), Vector(0, 0, 1), 1.6), False)
sketch9.addGeometry(Part.Circle(Vector(133, -232.5, 0), Vector(0, 0, 1), 1.6), False)
sketch9.addGeometry(Part.Circle(Vector(181, -232.5, 0), Vector(0, 0, 1), 1.6), False)
sketch9.addGeometry(Part.Circle(Vector(157, -286.5, 0), Vector(0, 0, 1), 1.6), False)
sketch9.addGeometry(Part.Circle(Vector(254, -271, 0), Vector(0, 0, 1), 1.6), False)
sketch9.addGeometry(Part.Circle(Vector(173.5, -309, 0), Vector(0, 0, 1), 1.6), False)
sketch9.addGeometry(Part.Circle(Vector(172, -339, 0), Vector(0, 0, 1), 1.6), False)
sketch9.addGeometry(Part.Circle(Vector(255, -320.5, 0), Vector(0, 0, 1), 1.6), False)
sketch9.addConstraint(Sketcher.Constraint("Equal", 0, 1))
sketch9.addConstraint(Sketcher.Constraint("Equal", 1, 2))
sketch9.addConstraint(Sketcher.Constraint("Equal", 2, 3))
sketch9.addConstraint(Sketcher.Constraint("Equal", 3, 4))
sketch9.addConstraint(Sketcher.Constraint("Equal", 4, 5))
sketch9.addConstraint(Sketcher.Constraint("Equal", 5, 6))
sketch9.addConstraint(Sketcher.Constraint("Equal", 6, 7))
sketch9.addConstraint(Sketcher.Constraint("Equal", 7, 8))
sketch9.addConstraint(Sketcher.Constraint("Equal", 8, 9))
sketch9.addConstraint(Sketcher.Constraint("Equal", 9, 10))
sketch9.addConstraint(Sketcher.Constraint("Horizontal", 4, 3, 5, 3))
sketch9.addConstraint(Sketcher.Constraint("Diameter", 0, Q("3.2 mm")))
sketch9.addConstraint(Sketcher.Constraint("DistanceX", 0, 3, 2, 3, Q("1 mm")))
sketch9.addConstraint(Sketcher.Constraint("DistanceY", 1, 3, 2, 3, Q("55 mm")))
sketch9.addConstraint(Sketcher.Constraint("DistanceX", 1, 3, 3, 3, Q("5 mm")))
sketch9.addConstraint(Sketcher.Constraint("DistanceY", 0, 3, 3, 3, Q("84 mm")))
sketch9.addConstraint(Sketcher.Constraint("DistanceX", 2, 3, 4, 3, Q("76 mm")))
sketch9.addConstraint(Sketcher.Constraint("DistanceY", 2, 3, 4, 3, Q("47 mm")))
sketch9.addConstraint(Sketcher.Constraint("DistanceX", 4, 3, 5, 3, Q("48 mm")))
sketch9.addConstraint(Sketcher.Constraint("DistanceY", 1, 3, 6, 3, Q("48 mm")))
sketch9.addConstraint(Sketcher.Constraint("DistanceX", 4, 3, 6, 3, Q("24 mm")))
sketch9.addConstraint(Sketcher.Constraint("DistanceX", 5, 3, 7, 3, Q("73 mm")))
sketch9.addConstraint(Sketcher.Constraint("DistanceY", 7, 3, 3, 3, Q("15 mm")))
sketch9.addConstraint(Sketcher.Constraint("DistanceX", 1, 3, 8, 3, Q("46 mm")))
sketch9.addConstraint(Sketcher.Constraint("DistanceY", 8, 3, 3, 3, Q("53 mm")))
sketch9.addConstraint(Sketcher.Constraint("DistanceY", 9, 3, 8, 3, Q("30 mm")))
sketch9.addConstraint(Sketcher.Constraint("DistanceX", 6, 3, 9, 3, Q("15 mm")))
sketch9.addConstraint(Sketcher.Constraint("DistanceX", 7, 3, 10, 3, Q("1 mm")))
sketch9.addConstraint(Sketcher.Constraint("DistanceY", 10, 3, 6, 3, Q("34 mm")))
sketch9.addConstraint(Sketcher.Constraint("DistanceX", 0, 3, 1, 3, Q("71.5 mm")))
sketch9.addConstraint(Sketcher.Constraint("DistanceY", 0, 3, 1, 3, Q("5.5 mm")))
sketch9.addConstraint(Sketcher.Constraint("DistanceX", -1, 1, 0, 3, Q("55.991993 mm")))
sketch9.addConstraint(Sketcher.Constraint("DistanceY", 0, 3, -1, 1, Q("340.003687 mm")))
pocket2 = body.newObject("PartDesign::Pocket", "Pocket001")
pocket2.Profile = sketch9
pocket2.Length = 2.15
pocket2.Reversed = True

# Sketch on XZ plane
sketch10 = body.newObject("Sketcher::SketchObject", "Sketch009")
sketch10.AttachmentSupport = (doc.getObject("XZ_Plane"), [""])
sketch10.MapMode = "FlatFace"
sketch10.AttachmentOffset = App.Placement(Vector(0, 0, -3.85), App.Rotation())
sketch10.addGeometry(Part.LineSegment(Vector(53, -343, 0), Vector(53, -337, 0)), False)
sketch10.addGeometry(Part.LineSegment(Vector(53, -337, 0), Vector(59, -337, 0)), False)
sketch10.addGeometry(Part.LineSegment(Vector(59, -337, 0), Vector(59, -343, 0)), False)
sketch10.addGeometry(Part.LineSegment(Vector(59, -343, 0), Vector(53, -343, 0)), False)
sketch10.addGeometry(Part.LineSegment(Vector(125, -337, 0), Vector(125, -332, 0)), False)
sketch10.addGeometry(Part.LineSegment(Vector(125, -332, 0), Vector(130, -332, 0)), False)
sketch10.addGeometry(Part.LineSegment(Vector(130, -332, 0), Vector(130, -337, 0)), False)
sketch10.addGeometry(Part.LineSegment(Vector(130, -337, 0), Vector(125, -337, 0)), False)
sketch10.addGeometry(Part.LineSegment(Vector(54, -282, 0), Vector(54, -277, 0)), False)
sketch10.addGeometry(Part.LineSegment(Vector(54, -277, 0), Vector(60, -277, 0)), False)
sketch10.addGeometry(Part.LineSegment(Vector(60, -277, 0), Vector(60, -282, 0)), False)
sketch10.addGeometry(Part.LineSegment(Vector(60, -282, 0), Vector(54, -282, 0)), False)
sketch10.addGeometry(Part.LineSegment(Vector(130, -259, 0), Vector(130, -253, 0)), False)
sketch10.addGeometry(Part.LineSegment(Vector(130, -253, 0), Vector(135, -253, 0)), False)
sketch10.addGeometry(Part.LineSegment(Vector(135, -253, 0), Vector(135, -259, 0)), False)
sketch10.addGeometry(Part.LineSegment(Vector(135, -259, 0), Vector(130, -259, 0)), False)
sketch10.addGeometry(Part.LineSegment(Vector(130, -235, 0), Vector(130, -230, 0)), False)
sketch10.addGeometry(Part.LineSegment(Vector(130, -230, 0), Vector(136, -230, 0)), False)
sketch10.addGeometry(Part.LineSegment(Vector(136, -230, 0), Vector(136, -235, 0)), False)
sketch10.addGeometry(Part.LineSegment(Vector(136, -235, 0), Vector(130, -235, 0)), False)
sketch10.addGeometry(Part.LineSegment(Vector(178, -235, 0), Vector(178, -230, 0)), False)
sketch10.addGeometry(Part.LineSegment(Vector(178, -230, 0), Vector(184, -230, 0)), False)
sketch10.addGeometry(Part.LineSegment(Vector(184, -230, 0), Vector(184, -235, 0)), False)
sketch10.addGeometry(Part.LineSegment(Vector(184, -235, 0), Vector(178, -235, 0)), False)
sketch10.addGeometry(Part.LineSegment(Vector(251, -274, 0), Vector(251, -268, 0)), False)
sketch10.addGeometry(Part.LineSegment(Vector(251, -268, 0), Vector(257, -268, 0)), False)
sketch10.addGeometry(Part.LineSegment(Vector(257, -268, 0), Vector(257, -274, 0)), False)
sketch10.addGeometry(Part.LineSegment(Vector(257, -274, 0), Vector(251, -274, 0)), False)
sketch10.addGeometry(Part.LineSegment(Vector(171, -312, 0), Vector(171, -306, 0)), False)
sketch10.addGeometry(Part.LineSegment(Vector(171, -306, 0), Vector(176, -306, 0)), False)
sketch10.addGeometry(Part.LineSegment(Vector(176, -306, 0), Vector(176, -312, 0)), False)
sketch10.addGeometry(Part.LineSegment(Vector(176, -312, 0), Vector(171, -312, 0)), False)
sketch10.addGeometry(Part.LineSegment(Vector(169, -342, 0), Vector(169, -336, 0)), False)
sketch10.addGeometry(Part.LineSegment(Vector(169, -336, 0), Vector(175, -336, 0)), False)
sketch10.addGeometry(Part.LineSegment(Vector(175, -336, 0), Vector(175, -342, 0)), False)
sketch10.addGeometry(Part.LineSegment(Vector(175, -342, 0), Vector(169, -342, 0)), False)
sketch10.addGeometry(Part.LineSegment(Vector(252, -323, 0), Vector(252, -318, 0)), False)
sketch10.addGeometry(Part.LineSegment(Vector(252, -318, 0), Vector(258, -318, 0)), False)
sketch10.addGeometry(Part.LineSegment(Vector(258, -318, 0), Vector(258, -323, 0)), False)
sketch10.addGeometry(Part.LineSegment(Vector(258, -323, 0), Vector(252, -323, 0)), False)
sketch10.addConstraint(Sketcher.Constraint("Coincident", 0, 2, 1, 1))
sketch10.addConstraint(Sketcher.Constraint("Coincident", 1, 2, 2, 1))
sketch10.addConstraint(Sketcher.Constraint("Coincident", 2, 2, 3, 1))
sketch10.addConstraint(Sketcher.Constraint("Coincident", 3, 2, 0, 1))
sketch10.addConstraint(Sketcher.Constraint("Coincident", 4, 2, 5, 1))
sketch10.addConstraint(Sketcher.Constraint("Coincident", 5, 2, 6, 1))
sketch10.addConstraint(Sketcher.Constraint("Coincident", 6, 2, 7, 1))
sketch10.addConstraint(Sketcher.Constraint("Coincident", 7, 2, 4, 1))
sketch10.addConstraint(Sketcher.Constraint("Coincident", 8, 2, 9, 1))
sketch10.addConstraint(Sketcher.Constraint("Coincident", 9, 2, 10, 1))
sketch10.addConstraint(Sketcher.Constraint("Coincident", 10, 2, 11, 1))
sketch10.addConstraint(Sketcher.Constraint("Coincident", 11, 2, 8, 1))
sketch10.addConstraint(Sketcher.Constraint("Coincident", 12, 2, 13, 1))
sketch10.addConstraint(Sketcher.Constraint("Coincident", 13, 2, 14, 1))
sketch10.addConstraint(Sketcher.Constraint("Coincident", 14, 2, 15, 1))
sketch10.addConstraint(Sketcher.Constraint("Coincident", 15, 2, 12, 1))
sketch10.addConstraint(Sketcher.Constraint("Coincident", 16, 2, 17, 1))
sketch10.addConstraint(Sketcher.Constraint("Coincident", 17, 2, 18, 1))
sketch10.addConstraint(Sketcher.Constraint("Coincident", 18, 2, 19, 1))
sketch10.addConstraint(Sketcher.Constraint("Coincident", 19, 2, 16, 1))
sketch10.addConstraint(Sketcher.Constraint("Coincident", 20, 2, 21, 1))
sketch10.addConstraint(Sketcher.Constraint("Coincident", 21, 2, 22, 1))
sketch10.addConstraint(Sketcher.Constraint("Coincident", 22, 2, 23, 1))
sketch10.addConstraint(Sketcher.Constraint("Coincident", 23, 2, 20, 1))
sketch10.addConstraint(Sketcher.Constraint("Coincident", 24, 2, 25, 1))
sketch10.addConstraint(Sketcher.Constraint("Coincident", 25, 2, 26, 1))
sketch10.addConstraint(Sketcher.Constraint("Coincident", 26, 2, 27, 1))
sketch10.addConstraint(Sketcher.Constraint("Coincident", 27, 2, 24, 1))
sketch10.addConstraint(Sketcher.Constraint("Coincident", 28, 2, 29, 1))
sketch10.addConstraint(Sketcher.Constraint("Coincident", 29, 2, 30, 1))
sketch10.addConstraint(Sketcher.Constraint("Coincident", 30, 2, 31, 1))
sketch10.addConstraint(Sketcher.Constraint("Coincident", 31, 2, 28, 1))
sketch10.addConstraint(Sketcher.Constraint("Coincident", 32, 2, 33, 1))
sketch10.addConstraint(Sketcher.Constraint("Coincident", 33, 2, 34, 1))
sketch10.addConstraint(Sketcher.Constraint("Coincident", 34, 2, 35, 1))
sketch10.addConstraint(Sketcher.Constraint("Coincident", 35, 2, 32, 1))
sketch10.addConstraint(Sketcher.Constraint("Coincident", 36, 2, 37, 1))
sketch10.addConstraint(Sketcher.Constraint("Coincident", 37, 2, 38, 1))
sketch10.addConstraint(Sketcher.Constraint("Coincident", 38, 2, 39, 1))
sketch10.addConstraint(Sketcher.Constraint("Coincident", 39, 2, 36, 1))
sketch10.addConstraint(Sketcher.Constraint("Vertical", 0))
sketch10.addConstraint(Sketcher.Constraint("Horizontal", 1))
sketch10.addConstraint(Sketcher.Constraint("Vertical", 2))
sketch10.addConstraint(Sketcher.Constraint("Horizontal", 3))
sketch10.addConstraint(Sketcher.Constraint("Vertical", 4))
sketch10.addConstraint(Sketcher.Constraint("Horizontal", 5))
sketch10.addConstraint(Sketcher.Constraint("Vertical", 6))
sketch10.addConstraint(Sketcher.Constraint("Horizontal", 7))
sketch10.addConstraint(Sketcher.Constraint("Vertical", 8))
sketch10.addConstraint(Sketcher.Constraint("Horizontal", 9))
sketch10.addConstraint(Sketcher.Constraint("Vertical", 10))
sketch10.addConstraint(Sketcher.Constraint("Horizontal", 11))
sketch10.addConstraint(Sketcher.Constraint("Vertical", 12))
sketch10.addConstraint(Sketcher.Constraint("Horizontal", 13))
sketch10.addConstraint(Sketcher.Constraint("Vertical", 14))
sketch10.addConstraint(Sketcher.Constraint("Horizontal", 15))
sketch10.addConstraint(Sketcher.Constraint("Vertical", 16))
sketch10.addConstraint(Sketcher.Constraint("Horizontal", 17))
sketch10.addConstraint(Sketcher.Constraint("Vertical", 18))
sketch10.addConstraint(Sketcher.Constraint("Horizontal", 19))
sketch10.addConstraint(Sketcher.Constraint("Vertical", 20))
sketch10.addConstraint(Sketcher.Constraint("Horizontal", 21))
sketch10.addConstraint(Sketcher.Constraint("Vertical", 22))
sketch10.addConstraint(Sketcher.Constraint("Horizontal", 23))
sketch10.addConstraint(Sketcher.Constraint("Vertical", 24))
sketch10.addConstraint(Sketcher.Constraint("Horizontal", 25))
sketch10.addConstraint(Sketcher.Constraint("Vertical", 26))
sketch10.addConstraint(Sketcher.Constraint("Horizontal", 27))
sketch10.addConstraint(Sketcher.Constraint("Vertical", 28))
sketch10.addConstraint(Sketcher.Constraint("Horizontal", 29))
sketch10.addConstraint(Sketcher.Constraint("Vertical", 30))
sketch10.addConstraint(Sketcher.Constraint("Horizontal", 31))
sketch10.addConstraint(Sketcher.Constraint("Vertical", 32))
sketch10.addConstraint(Sketcher.Constraint("Horizontal", 33))
sketch10.addConstraint(Sketcher.Constraint("Vertical", 34))
sketch10.addConstraint(Sketcher.Constraint("Horizontal", 35))
sketch10.addConstraint(Sketcher.Constraint("Vertical", 36))
sketch10.addConstraint(Sketcher.Constraint("Horizontal", 37))
sketch10.addConstraint(Sketcher.Constraint("Vertical", 38))
sketch10.addConstraint(Sketcher.Constraint("Horizontal", 39))
sketch10.addConstraint(Sketcher.Constraint("Horizontal", 1, 2, 6, 2))
sketch10.addConstraint(Sketcher.Constraint("Horizontal", 17, 2, 20, 2))
sketch10.addConstraint(Sketcher.Constraint("Horizontal", 19, 2, 22, 2))
sketch10.addConstraint(Sketcher.Constraint("Vertical", 6, 2, 16, 2))
sketch10.addConstraint(Sketcher.Constraint("Equal", 3, 5))
sketch10.addConstraint(Sketcher.Constraint("Equal", 7, 9))
sketch10.addConstraint(Sketcher.Constraint("Equal", 11, 13))
sketch10.addConstraint(Sketcher.Constraint("Equal", 15, 17))
sketch10.addConstraint(Sketcher.Constraint("Equal", 19, 21))
sketch10.addConstraint(Sketcher.Constraint("Equal", 23, 25))
sketch10.addConstraint(Sketcher.Constraint("Equal", 27, 29))
sketch10.addConstraint(Sketcher.Constraint("Equal", 31, 33))
sketch10.addConstraint(Sketcher.Constraint("Equal", 35, 37))
sketch10.addConstraint(Sketcher.Constraint("Equal", 39, 0))
sketch10.addConstraint(Sketcher.Constraint("Equal", 2, 4))
sketch10.addConstraint(Sketcher.Constraint("Equal", 6, 8))
sketch10.addConstraint(Sketcher.Constraint("Equal", 10, 12))
sketch10.addConstraint(Sketcher.Constraint("Equal", 14, 16))
sketch10.addConstraint(Sketcher.Constraint("Equal", 22, 24))
sketch10.addConstraint(Sketcher.Constraint("Equal", 26, 28))
sketch10.addConstraint(Sketcher.Constraint("Equal", 30, 32))
sketch10.addConstraint(Sketcher.Constraint("Equal", 34, 36))
sketch10.addConstraint(Sketcher.Constraint("DistanceX", 1, 1, 1, 2, Q("5.5 mm")))
sketch10.addConstraint(Sketcher.Constraint("DistanceX", 1, 2, 4, 2, Q("66 mm")))
sketch10.addConstraint(Sketcher.Constraint("DistanceX", 0, 2, 8, 2, Q("1 mm")))
sketch10.addConstraint(Sketcher.Constraint("DistanceY", 3, 2, 8, 2, Q("66 mm")))
sketch10.addConstraint(Sketcher.Constraint("DistanceX", 9, 2, 12, 2, Q("70 mm")))
sketch10.addConstraint(Sketcher.Constraint("DistanceY", 10, 2, 12, 2, Q("29 mm")))
sketch10.addConstraint(Sketcher.Constraint("DistanceY", 15, 2, 16, 2, Q("29 mm")))
sketch10.addConstraint(Sketcher.Constraint("DistanceX", 16, 2, 20, 2, Q("48 mm")))
sketch10.addConstraint(Sketcher.Constraint("DistanceY", 24, 2, 22, 2, Q("33 mm")))
sketch10.addConstraint(Sketcher.Constraint("DistanceX", 23, 2, 24, 2, Q("73 mm")))
sketch10.addConstraint(Sketcher.Constraint("DistanceY", 6, 2, 28, 2, Q("31 mm")))
sketch10.addConstraint(Sketcher.Constraint("DistanceX", 4, 2, 28, 2, Q("46 mm")))
sketch10.addConstraint(Sketcher.Constraint("DistanceX", 32, 2, 30, 2, Q("7 mm")))
sketch10.addConstraint(Sketcher.Constraint("DistanceY", 32, 2, 28, 2, Q("30 mm")))
sketch10.addConstraint(Sketcher.Constraint("DistanceX", 27, 2, 36, 2, Q("1 mm")))
sketch10.addConstraint(Sketcher.Constraint("DistanceY", 36, 2, 27, 2, Q("44 mm")))
sketch10.addConstraint(Sketcher.Constraint("DistanceX", -1, 1, 0, 2, Q("53.241993 mm")))
sketch10.addConstraint(Sketcher.Constraint("DistanceY", 0, 2, -1, 1, Q("337.253687 mm")))
pocket3 = body.newObject("PartDesign::Pocket", "Pocket002")
pocket3.Profile = sketch10
pocket3.Length = 1.8
pocket3.Reversed = True

doc.recompute()
